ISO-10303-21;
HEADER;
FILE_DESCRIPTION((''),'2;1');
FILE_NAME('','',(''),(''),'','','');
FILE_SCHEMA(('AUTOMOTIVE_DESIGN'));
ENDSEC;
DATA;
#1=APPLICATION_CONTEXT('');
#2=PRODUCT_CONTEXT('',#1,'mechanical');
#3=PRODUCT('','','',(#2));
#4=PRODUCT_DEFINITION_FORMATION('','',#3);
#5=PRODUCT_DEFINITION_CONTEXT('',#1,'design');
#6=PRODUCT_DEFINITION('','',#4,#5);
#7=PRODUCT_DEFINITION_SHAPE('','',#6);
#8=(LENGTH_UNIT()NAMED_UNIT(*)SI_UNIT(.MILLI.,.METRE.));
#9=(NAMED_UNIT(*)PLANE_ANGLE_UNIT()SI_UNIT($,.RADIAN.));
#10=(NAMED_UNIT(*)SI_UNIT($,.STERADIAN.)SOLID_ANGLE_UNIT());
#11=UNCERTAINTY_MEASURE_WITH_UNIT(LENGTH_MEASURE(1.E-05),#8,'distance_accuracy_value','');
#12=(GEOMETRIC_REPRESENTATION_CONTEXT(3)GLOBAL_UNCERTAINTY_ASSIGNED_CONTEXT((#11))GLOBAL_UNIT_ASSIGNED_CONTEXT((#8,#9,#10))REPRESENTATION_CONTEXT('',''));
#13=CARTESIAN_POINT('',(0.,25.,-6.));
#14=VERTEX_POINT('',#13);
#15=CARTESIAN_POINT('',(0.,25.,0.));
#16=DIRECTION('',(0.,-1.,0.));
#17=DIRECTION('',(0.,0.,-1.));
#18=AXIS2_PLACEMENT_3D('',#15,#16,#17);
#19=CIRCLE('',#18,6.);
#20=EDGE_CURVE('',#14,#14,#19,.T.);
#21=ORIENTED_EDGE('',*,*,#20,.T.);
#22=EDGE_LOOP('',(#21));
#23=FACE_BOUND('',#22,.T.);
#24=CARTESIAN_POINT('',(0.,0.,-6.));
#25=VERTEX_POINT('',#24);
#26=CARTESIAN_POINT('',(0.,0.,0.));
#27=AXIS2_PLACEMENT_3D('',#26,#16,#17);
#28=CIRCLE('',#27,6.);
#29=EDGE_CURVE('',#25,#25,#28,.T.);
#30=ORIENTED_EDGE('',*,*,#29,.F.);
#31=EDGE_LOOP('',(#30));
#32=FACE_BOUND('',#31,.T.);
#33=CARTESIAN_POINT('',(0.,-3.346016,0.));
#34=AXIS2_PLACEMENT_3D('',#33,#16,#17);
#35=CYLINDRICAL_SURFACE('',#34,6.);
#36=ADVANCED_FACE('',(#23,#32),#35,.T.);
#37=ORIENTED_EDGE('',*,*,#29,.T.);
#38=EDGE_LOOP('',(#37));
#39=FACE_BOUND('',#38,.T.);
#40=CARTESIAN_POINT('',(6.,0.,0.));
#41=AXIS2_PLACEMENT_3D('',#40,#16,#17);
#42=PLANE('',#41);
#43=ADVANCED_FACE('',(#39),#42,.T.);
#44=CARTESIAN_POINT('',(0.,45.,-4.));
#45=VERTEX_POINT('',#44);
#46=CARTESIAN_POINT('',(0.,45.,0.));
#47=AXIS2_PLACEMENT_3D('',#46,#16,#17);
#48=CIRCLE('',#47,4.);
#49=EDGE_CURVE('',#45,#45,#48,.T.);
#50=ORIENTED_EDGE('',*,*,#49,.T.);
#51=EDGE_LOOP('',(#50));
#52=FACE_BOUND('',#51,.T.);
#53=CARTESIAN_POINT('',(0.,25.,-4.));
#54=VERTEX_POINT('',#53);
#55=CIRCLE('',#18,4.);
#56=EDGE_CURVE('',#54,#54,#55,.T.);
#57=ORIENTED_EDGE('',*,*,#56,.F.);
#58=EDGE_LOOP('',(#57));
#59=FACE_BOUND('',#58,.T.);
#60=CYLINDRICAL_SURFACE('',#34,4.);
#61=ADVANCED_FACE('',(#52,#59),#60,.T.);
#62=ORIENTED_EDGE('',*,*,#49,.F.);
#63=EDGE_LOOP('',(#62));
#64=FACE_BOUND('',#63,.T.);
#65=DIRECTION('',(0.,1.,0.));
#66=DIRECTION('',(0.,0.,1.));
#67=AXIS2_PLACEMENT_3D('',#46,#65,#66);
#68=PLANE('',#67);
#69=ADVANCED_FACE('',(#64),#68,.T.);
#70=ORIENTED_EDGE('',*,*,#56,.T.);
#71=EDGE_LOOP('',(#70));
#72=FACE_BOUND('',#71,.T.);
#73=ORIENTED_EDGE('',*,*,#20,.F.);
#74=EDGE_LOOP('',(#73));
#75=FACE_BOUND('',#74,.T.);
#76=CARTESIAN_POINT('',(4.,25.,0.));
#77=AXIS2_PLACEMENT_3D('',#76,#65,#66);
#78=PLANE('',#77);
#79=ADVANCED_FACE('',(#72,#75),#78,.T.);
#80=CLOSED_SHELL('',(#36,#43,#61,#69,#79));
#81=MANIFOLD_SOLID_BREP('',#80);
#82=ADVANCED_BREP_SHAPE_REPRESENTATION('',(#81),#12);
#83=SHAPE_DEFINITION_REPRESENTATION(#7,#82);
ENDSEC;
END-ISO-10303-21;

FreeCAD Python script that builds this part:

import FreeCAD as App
import Part
import Sketcher

V = App.Vector
Q = App.Units.Quantity

doc = App.newDocument("Part")
params = doc.addObject("Spreadsheet::Sheet", "Params")
for row, (alias, value) in enumerate([
    ("sketch1_width", "6 mm"),
    ("sketch1_width2", "2 mm"),
    ("sketch1_height", "45 mm"),
    ("sketch1_height2", "25 mm"),
    ("revolution_angle", "360 deg"),
], start=1):
    params.set(f"A{row}", alias)
    params.set(f"B{row}", "=" + value)
    params.setAlias(f"B{row}", alias)

body = doc.addObject("PartDesign::Body", "Body")

# Sketch on XY plane
sketch1 = doc.addObject("Sketcher::SketchObject", "Sketch")
body.addObject(sketch1)
sketch1.AttachmentSupport = (doc.XY_Plane, [""])
sketch1.MapMode = "FlatFace"
sketch1.addGeometry([
    Part.LineSegment(V(0, 45, 0), V(0, 0, 0)),  # 0
    Part.LineSegment(V(0, 0, 0), V(6, 0, 0)),  # 1
    Part.LineSegment(V(6, 0, 0), V(6, 25, 0)),  # 2
    Part.LineSegment(V(6, 25, 0), V(4, 25, 0)),  # 3
    Part.LineSegment(V(4, 25, 0), V(4, 45, 0)),  # 4
    Part.LineSegment(V(4, 45, 0), V(0, 45, 0)),  # 5
], False)
sketch1.addConstraint([
    Sketcher.Constraint("Coincident", 0, 2, 1, 1),
    Sketcher.Constraint("Coincident", 1, 2, 2, 1),
    Sketcher.Constraint("Coincident", 2, 2, 3, 1),
    Sketcher.Constraint("Coincident", 3, 2, 4, 1),
    Sketcher.Constraint("Coincident", 4, 2, 5, 1),
    Sketcher.Constraint("Coincident", 5, 2, 0, 1),
    Sketcher.Constraint("Vertical", 0),
    Sketcher.Constraint("Horizontal", 1),
    Sketcher.Constraint("Vertical", 2),
    Sketcher.Constraint("Horizontal", 3),
    Sketcher.Constraint("Vertical", 4),
    Sketcher.Constraint("Horizontal", 5),
    Sketcher.Constraint("Coincident", 0, 2, -1, 1),
    Sketcher.Constraint("DistanceX", 1, 1, 1, 2, Q("6 mm")),
    Sketcher.Constraint("DistanceX", 3, 2, 3, 1, Q("2 mm")),
    Sketcher.Constraint("DistanceY", 0, 2, 0, 1, Q("45 mm")),
    Sketcher.Constraint("DistanceY", 2, 1, 2, 2, Q("25 mm")),
])
sketch1.setExpression("Constraints[13]", "Params.sketch1_width")
sketch1.setExpression("Constraints[14]", "Params.sketch1_width2")
sketch1.setExpression("Constraints[15]", "Params.sketch1_height")
sketch1.setExpression("Constraints[16]", "Params.sketch1_height2")
revolution = doc.addObject("PartDesign::Revolution", "Revolution")
body.addObject(revolution)
revolution.Profile = sketch1
revolution.ReferenceAxis = (sketch1, ["V_Axis"])
revolution.setExpression("Angle", "Params.revolution_angle")

doc.recompute()
